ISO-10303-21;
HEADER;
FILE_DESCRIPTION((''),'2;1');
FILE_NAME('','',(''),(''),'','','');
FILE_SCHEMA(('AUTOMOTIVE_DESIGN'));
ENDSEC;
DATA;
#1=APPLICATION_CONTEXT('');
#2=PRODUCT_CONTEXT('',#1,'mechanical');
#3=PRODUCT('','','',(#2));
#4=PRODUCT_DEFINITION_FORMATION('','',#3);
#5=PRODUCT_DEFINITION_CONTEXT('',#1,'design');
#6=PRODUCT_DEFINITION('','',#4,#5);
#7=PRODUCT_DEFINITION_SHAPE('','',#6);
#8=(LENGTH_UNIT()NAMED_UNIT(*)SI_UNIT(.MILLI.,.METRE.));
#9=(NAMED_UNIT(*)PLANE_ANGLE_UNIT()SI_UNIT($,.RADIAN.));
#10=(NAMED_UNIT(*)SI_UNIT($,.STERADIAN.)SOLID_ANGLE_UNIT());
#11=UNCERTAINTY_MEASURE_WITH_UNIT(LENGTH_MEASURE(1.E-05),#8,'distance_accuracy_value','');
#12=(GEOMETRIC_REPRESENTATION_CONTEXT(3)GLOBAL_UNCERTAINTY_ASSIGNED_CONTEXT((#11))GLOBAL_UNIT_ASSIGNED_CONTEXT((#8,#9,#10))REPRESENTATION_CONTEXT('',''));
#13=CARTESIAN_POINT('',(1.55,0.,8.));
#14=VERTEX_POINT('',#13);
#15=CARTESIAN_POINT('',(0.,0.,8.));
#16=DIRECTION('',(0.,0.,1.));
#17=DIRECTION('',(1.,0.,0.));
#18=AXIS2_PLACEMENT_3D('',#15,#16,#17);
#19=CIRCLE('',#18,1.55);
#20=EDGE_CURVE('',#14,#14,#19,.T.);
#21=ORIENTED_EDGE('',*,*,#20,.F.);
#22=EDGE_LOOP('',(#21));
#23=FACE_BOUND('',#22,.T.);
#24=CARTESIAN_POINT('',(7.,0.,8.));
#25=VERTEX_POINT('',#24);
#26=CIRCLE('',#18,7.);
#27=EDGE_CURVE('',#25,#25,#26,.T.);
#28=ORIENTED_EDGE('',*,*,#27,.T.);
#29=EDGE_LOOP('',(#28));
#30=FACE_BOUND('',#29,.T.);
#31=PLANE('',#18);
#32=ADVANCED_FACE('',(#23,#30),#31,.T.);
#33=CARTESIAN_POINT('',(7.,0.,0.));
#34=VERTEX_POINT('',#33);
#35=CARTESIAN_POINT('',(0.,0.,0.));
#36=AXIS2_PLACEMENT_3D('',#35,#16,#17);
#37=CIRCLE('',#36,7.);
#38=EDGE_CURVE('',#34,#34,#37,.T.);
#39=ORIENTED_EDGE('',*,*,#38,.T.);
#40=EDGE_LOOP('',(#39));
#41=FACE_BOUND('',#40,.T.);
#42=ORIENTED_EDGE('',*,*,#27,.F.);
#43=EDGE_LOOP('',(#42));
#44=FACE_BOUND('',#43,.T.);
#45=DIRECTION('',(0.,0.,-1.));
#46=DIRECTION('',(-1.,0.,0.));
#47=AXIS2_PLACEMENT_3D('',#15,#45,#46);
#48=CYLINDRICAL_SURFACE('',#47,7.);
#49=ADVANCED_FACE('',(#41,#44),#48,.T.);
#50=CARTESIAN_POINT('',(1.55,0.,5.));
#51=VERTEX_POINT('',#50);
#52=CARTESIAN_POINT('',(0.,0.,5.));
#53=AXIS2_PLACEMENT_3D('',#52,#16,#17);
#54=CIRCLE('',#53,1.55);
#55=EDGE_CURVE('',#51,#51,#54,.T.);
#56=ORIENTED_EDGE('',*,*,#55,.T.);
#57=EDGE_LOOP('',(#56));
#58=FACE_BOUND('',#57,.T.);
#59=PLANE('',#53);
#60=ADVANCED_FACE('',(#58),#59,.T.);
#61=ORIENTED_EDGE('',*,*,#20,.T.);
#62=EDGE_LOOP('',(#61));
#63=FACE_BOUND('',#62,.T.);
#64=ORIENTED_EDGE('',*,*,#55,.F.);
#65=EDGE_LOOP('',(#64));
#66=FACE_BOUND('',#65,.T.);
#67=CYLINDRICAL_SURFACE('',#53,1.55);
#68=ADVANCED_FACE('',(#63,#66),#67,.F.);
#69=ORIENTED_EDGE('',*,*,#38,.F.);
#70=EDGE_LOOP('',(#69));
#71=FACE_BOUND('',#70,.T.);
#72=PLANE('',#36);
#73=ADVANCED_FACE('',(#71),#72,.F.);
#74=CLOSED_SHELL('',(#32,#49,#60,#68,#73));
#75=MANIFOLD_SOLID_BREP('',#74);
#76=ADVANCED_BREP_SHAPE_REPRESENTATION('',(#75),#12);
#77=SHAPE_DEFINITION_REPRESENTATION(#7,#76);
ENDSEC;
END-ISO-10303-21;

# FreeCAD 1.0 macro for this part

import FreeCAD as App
import Part
import Sketcher
from FreeCAD import Vector

doc = App.newDocument("Part")
body = doc.addObject("PartDesign::Body", "Body")

# Sketch on XY plane
sketch1 = doc.addObject("Sketcher::SketchObject", "Sketch")
body.addObject(sketch1)
sketch1.AttachmentSupport = (doc.XY_Plane, [""])
sketch1.MapMode = "FlatFace"
sketch1.addGeometry(Part.Circle(Vector(0, 0, 0), Vector(0, 0, 1), 7), False)
sketch1.addConstraint(Sketcher.Constraint("Coincident", 0, 3, -1, 1))
sketch1.addConstraint(Sketcher.Constraint("Diameter", 0, 14.0))
pad1 = doc.addObject("PartDesign::Pad", "Pad")
body.addObject(pad1)
pad1.Profile = sketch1
pad1.Length = 8

# Sketch on XY plane
sketch2 = doc.addObject("Sketcher::SketchObject", "Sketch001")
body.addObject(sketch2)
sketch2.AttachmentSupport = (doc.XY_Plane, [""])
sketch2.MapMode = "FlatFace"
sketch2.AttachmentOffset = App.Placement(Vector(0, 0, 8), App.Rotation())
sketch2.addGeometry(Part.Circle(Vector(0, 0, 0), Vector(0, 0, 1), 1.55), False)
sketch2.addConstraint(Sketcher.Constraint("Coincident", 0, 3, -1, 1))
sketch2.addConstraint(Sketcher.Constraint("Diameter", 0, 3.1))
pocket1 = doc.addObject("PartDesign::Pocket", "Pocket")
body.addObject(pocket1)
pocket1.Profile = sketch2
pocket1.Length = 3

doc.recompute()
